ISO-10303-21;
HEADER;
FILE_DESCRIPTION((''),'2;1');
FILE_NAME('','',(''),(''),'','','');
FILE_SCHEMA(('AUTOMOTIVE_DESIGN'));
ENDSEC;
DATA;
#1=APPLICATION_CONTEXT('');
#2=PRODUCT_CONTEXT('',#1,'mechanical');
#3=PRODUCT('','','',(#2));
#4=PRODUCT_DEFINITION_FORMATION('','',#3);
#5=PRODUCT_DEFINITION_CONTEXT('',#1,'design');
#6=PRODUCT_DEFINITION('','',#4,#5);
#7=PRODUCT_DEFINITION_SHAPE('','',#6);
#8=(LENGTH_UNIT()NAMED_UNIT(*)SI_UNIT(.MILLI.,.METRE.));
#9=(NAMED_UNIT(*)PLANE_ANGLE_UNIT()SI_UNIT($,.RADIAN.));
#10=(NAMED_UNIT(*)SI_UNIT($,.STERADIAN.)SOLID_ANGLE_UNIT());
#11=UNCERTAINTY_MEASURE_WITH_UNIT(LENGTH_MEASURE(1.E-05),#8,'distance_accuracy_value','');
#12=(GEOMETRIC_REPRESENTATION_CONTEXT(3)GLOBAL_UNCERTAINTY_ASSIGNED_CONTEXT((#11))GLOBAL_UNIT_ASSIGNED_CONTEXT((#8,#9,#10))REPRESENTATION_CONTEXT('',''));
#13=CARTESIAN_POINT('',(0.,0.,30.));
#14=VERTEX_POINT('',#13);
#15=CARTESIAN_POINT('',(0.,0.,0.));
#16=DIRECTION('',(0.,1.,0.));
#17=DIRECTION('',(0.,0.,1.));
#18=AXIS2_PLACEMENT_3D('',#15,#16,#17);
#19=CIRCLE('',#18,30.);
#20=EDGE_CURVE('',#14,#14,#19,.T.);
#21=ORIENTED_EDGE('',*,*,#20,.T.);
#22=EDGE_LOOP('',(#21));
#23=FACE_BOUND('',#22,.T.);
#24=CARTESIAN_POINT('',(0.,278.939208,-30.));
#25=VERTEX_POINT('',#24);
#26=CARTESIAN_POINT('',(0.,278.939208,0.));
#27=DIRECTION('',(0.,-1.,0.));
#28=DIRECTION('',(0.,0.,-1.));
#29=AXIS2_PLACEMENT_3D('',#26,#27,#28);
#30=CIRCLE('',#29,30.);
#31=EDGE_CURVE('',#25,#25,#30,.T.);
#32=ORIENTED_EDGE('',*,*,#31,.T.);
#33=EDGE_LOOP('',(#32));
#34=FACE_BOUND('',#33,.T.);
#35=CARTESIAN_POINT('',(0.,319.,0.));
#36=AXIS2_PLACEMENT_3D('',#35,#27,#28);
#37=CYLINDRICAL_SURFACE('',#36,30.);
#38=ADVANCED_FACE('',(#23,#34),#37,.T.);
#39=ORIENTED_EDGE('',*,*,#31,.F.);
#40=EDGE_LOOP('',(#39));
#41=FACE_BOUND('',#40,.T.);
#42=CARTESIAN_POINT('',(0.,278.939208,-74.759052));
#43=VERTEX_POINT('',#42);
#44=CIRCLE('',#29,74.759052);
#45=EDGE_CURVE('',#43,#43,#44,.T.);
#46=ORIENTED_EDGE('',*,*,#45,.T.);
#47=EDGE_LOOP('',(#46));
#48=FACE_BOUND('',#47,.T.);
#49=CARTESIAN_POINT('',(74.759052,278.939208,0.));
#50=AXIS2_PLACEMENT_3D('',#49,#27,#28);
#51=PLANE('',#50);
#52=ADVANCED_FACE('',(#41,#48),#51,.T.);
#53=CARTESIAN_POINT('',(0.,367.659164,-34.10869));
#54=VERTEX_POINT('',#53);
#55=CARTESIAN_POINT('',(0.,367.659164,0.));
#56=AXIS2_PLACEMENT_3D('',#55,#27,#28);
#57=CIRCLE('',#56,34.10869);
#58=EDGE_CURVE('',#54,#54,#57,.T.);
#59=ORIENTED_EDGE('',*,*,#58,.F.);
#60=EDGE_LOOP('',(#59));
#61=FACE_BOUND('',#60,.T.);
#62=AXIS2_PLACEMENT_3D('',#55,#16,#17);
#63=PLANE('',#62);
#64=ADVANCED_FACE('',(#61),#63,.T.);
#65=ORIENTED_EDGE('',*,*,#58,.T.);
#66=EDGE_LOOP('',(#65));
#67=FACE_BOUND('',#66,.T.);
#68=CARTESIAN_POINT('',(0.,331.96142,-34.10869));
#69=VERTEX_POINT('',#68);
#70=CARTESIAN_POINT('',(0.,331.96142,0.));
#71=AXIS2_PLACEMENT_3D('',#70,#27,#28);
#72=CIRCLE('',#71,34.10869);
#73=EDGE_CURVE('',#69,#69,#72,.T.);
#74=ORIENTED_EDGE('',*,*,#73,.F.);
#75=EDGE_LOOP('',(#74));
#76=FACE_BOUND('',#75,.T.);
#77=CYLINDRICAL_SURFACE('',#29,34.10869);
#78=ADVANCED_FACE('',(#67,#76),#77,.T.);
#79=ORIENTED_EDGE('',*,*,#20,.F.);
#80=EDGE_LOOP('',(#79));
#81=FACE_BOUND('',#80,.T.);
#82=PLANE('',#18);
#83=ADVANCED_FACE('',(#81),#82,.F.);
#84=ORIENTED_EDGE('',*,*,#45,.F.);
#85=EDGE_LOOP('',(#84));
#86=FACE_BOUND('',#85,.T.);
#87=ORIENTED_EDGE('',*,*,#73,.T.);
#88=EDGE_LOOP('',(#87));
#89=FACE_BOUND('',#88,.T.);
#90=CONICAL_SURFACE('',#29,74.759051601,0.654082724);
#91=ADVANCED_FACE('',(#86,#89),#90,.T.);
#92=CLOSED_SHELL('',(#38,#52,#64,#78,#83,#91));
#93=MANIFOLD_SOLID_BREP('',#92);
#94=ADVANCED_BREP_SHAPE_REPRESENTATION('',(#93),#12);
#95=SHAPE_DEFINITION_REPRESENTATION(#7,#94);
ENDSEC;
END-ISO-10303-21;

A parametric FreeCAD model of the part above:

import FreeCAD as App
import Part
import Sketcher

V = App.Vector
Q = App.Units.Quantity


def add_polygon(sketch, points):
    """Adds a closed chain of lines whose ends are joined by coincident constraints."""
    first, n = sketch.GeometryCount, len(points)
    for a, b in zip(points, points[1:] + points[:1]):
        sketch.addGeometry(Part.LineSegment(App.Vector(*a, 0), App.Vector(*b, 0)), False)
    for i in range(n):
        sketch.addConstraint(Sketcher.Constraint("Coincident", first + i, 2, first + (i + 1) % n, 1))

doc = App.newDocument("Part")
body = doc.addObject("PartDesign::Body", "Body")

sketch1 = doc.addObject("Sketcher::SketchObject", "Sketch")
body.addObject(sketch1)
sketch1.AttachmentSupport = (doc.XZ_Plane, [""])
sketch1.MapMode = "FlatFace"
sketch1.addGeometry(Part.Circle(V(0, 0, 0), V(0, 0, 1), 30), False)
sketch1.addConstraint(Sketcher.Constraint("Coincident", 0, 3, -1, 1))
sketch1.addConstraint(Sketcher.Constraint("Diameter", 0, Q("60 mm")))
pad1 = doc.addObject("PartDesign::Pad", "Pad")
body.addObject(pad1)
pad1.Profile = sketch1
pad1.Length = 319
pad1.Reversed = True

sketch2 = doc.addObject("Sketcher::SketchObject", "Sketch001")
body.addObject(sketch2)
sketch2.AttachmentSupport = (doc.XY_Plane, [""])
sketch2.MapMode = "FlatFace"
add_polygon(sketch2, [(34.10869, 367.659164), (0, 367.659164), (0, 278.939208), (74.759052, 278.939208), (34.10869, 331.96142)])
sketch2.addConstraint(Sketcher.Constraint("Horizontal", 0))
sketch2.addConstraint(Sketcher.Constraint("Vertical", 1))
sketch2.addConstraint(Sketcher.Constraint("Horizontal", 2))
sketch2.addConstraint(Sketcher.Constraint("Vertical", 4))
sketch2.addConstraint(Sketcher.Constraint("PointOnObject", 0, 2, -2))
sketch2.addConstraint(Sketcher.Constraint("DistanceX", 0, 2, 0, 1, Q("34.10869 mm")))
sketch2.addConstraint(Sketcher.Constraint("DistanceX", 2, 1, 2, 2, Q("74.759052 mm")))
sketch2.addConstraint(Sketcher.Constraint("DistanceY", 1, 2, 1, 1, Q("88.719956 mm")))
sketch2.addConstraint(Sketcher.Constraint("DistanceY", 4, 1, 4, 2, Q("35.697745 mm")))
sketch2.addConstraint(Sketcher.Constraint("DistanceY", -1, 1, 1, 2, Q("278.939208 mm")))
revolution = doc.addObject("PartDesign::Revolution", "Revolution")
body.addObject(revolution)
revolution.Profile = sketch2
revolution.ReferenceAxis = (sketch2, ["V_Axis"])
revolution.Angle = 360

doc.recompute()
